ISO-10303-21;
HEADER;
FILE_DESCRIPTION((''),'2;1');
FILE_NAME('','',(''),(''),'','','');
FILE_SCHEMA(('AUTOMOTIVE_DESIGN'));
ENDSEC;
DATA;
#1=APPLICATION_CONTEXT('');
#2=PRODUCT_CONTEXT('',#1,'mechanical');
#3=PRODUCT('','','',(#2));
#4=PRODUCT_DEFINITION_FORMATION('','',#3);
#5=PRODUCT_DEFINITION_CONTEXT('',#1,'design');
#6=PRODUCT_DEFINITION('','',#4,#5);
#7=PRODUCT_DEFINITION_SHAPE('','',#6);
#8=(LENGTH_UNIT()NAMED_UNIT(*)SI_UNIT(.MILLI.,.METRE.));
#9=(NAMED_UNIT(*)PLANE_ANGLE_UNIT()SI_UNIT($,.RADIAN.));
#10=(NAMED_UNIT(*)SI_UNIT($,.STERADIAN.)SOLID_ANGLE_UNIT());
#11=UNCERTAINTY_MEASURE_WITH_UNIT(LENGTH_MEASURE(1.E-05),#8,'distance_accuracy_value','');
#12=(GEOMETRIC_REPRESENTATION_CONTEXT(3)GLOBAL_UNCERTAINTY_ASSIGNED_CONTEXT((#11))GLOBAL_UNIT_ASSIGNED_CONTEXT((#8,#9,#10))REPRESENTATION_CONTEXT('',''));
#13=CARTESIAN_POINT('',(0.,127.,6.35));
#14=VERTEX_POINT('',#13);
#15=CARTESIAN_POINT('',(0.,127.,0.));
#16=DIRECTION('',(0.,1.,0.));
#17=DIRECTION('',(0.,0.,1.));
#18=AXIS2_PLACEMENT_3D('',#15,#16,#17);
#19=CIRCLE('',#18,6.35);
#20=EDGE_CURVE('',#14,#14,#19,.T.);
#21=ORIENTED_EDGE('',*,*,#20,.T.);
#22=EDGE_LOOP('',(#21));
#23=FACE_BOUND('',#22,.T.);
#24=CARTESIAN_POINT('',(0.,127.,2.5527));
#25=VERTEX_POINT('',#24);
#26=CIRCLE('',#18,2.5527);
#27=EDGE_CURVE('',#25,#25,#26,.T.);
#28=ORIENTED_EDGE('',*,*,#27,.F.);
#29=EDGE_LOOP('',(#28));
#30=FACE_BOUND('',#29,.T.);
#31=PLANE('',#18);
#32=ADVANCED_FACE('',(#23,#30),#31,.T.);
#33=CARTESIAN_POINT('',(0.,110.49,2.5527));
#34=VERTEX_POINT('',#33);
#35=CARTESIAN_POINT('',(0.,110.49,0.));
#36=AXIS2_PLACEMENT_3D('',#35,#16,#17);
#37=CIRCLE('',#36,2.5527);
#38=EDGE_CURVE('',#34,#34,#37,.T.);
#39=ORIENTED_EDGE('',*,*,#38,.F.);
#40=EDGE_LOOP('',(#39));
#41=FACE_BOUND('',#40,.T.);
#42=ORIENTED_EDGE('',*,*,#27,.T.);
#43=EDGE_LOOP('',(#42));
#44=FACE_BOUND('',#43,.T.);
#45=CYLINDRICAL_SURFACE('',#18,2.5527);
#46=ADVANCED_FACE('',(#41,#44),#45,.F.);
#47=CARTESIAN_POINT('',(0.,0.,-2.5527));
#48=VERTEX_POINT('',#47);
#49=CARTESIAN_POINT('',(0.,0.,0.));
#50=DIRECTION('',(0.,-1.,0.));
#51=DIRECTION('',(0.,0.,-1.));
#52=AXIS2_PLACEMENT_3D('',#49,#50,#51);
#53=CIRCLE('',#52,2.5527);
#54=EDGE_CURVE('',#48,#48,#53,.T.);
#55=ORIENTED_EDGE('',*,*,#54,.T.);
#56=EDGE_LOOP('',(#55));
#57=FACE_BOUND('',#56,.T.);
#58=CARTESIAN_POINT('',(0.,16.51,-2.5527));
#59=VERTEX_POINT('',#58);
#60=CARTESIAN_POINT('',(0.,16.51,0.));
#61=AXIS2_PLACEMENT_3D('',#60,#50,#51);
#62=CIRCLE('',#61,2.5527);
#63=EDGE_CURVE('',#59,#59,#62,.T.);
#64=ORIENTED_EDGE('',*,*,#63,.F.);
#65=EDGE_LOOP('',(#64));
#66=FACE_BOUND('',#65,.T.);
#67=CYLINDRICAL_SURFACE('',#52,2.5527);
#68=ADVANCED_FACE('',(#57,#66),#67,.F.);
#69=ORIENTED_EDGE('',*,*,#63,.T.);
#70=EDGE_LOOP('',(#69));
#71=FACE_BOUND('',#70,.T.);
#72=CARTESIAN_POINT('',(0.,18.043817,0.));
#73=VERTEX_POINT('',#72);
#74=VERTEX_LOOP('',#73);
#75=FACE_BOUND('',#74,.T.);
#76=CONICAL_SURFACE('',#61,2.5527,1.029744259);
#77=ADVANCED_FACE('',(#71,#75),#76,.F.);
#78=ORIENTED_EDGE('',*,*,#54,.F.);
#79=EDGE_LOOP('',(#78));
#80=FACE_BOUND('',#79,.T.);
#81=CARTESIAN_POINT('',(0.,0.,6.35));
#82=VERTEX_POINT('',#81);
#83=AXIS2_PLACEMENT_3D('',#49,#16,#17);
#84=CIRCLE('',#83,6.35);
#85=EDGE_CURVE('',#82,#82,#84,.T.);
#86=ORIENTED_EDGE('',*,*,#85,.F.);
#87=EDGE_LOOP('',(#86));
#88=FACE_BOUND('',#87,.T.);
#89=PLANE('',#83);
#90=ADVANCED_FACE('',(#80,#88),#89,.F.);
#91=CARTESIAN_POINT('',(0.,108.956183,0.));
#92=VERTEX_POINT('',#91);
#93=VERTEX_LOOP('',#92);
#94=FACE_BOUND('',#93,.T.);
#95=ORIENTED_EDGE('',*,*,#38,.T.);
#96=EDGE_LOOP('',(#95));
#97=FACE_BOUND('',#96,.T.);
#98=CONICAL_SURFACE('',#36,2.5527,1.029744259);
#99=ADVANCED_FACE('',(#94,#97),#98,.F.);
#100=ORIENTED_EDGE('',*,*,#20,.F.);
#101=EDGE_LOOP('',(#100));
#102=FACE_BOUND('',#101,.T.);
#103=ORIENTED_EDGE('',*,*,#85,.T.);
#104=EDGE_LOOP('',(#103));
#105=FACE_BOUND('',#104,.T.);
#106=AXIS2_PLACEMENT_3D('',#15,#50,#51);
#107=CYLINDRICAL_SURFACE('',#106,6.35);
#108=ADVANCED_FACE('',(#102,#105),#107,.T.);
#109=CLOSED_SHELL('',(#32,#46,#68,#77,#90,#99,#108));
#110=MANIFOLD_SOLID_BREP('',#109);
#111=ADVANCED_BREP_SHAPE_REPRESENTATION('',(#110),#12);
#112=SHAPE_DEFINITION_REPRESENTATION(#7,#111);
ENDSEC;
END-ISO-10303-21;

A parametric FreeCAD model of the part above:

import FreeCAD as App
import Part
import Sketcher

V = App.Vector
Q = App.Units.Quantity

doc = App.newDocument("Part")
body = doc.addObject("PartDesign::Body", "Body")

sketch1 = body.newObject("Sketcher::SketchObject", "Sketch")
sketch1.AttachmentSupport = (doc.getObject("XZ_Plane"), [""])
sketch1.MapMode = "FlatFace"
sketch1.addGeometry(Part.Circle(V(0, 0, 0), V(0, 0, 1), 6), False)
sketch1.addConstraint([
    Sketcher.Constraint("Coincident", 0, 3, -1, 1),
    Sketcher.Constraint("Diameter", 0, Q("0.5 in")),
])
pad1 = body.newObject("PartDesign::Pad", "Pad")
pad1.Profile = sketch1
pad1.Length = Q("5 in")
pad1.Reversed = True

sketch2 = body.newObject("Sketcher::SketchObject", "Sketch001")
sketch2.AttachmentSupport = (doc.getObject("XZ_Plane"), [""])
sketch2.MapMode = "FlatFace"
sketch2.AttachmentOffset = App.Placement(V(0, 0, -5 * 25.4), App.Rotation())
sketch2.addGeometry(Part.Circle(V(0, 0, 0), V(0, 0, 1), 2.6), False)
sketch2.addConstraint([
    Sketcher.Constraint("Coincident", 0, 3, -1, 1),
    Sketcher.Constraint("Diameter", 0, Q("0.201 in")),
])
doc.recompute()
hole = body.newObject("PartDesign::Hole", "Hole")
hole.Profile = sketch2
hole.ThreadType = "None"
hole.Diameter = Q("0.201 in")
hole.DepthType = "Dimension"
hole.Depth = Q("0.65 in")
hole.DrillPoint = "Angled"
hole.DrillPointAngle = 118
hole.Reversed = True

sketch3 = body.newObject("Sketcher::SketchObject", "Sketch002")
sketch3.AttachmentSupport = (doc.getObject("XZ_Plane"), [""])
sketch3.MapMode = "FlatFace"
sketch3.addGeometry(Part.Circle(V(0, 0, 0), V(0, 0, 1), 2.6), False)
sketch3.addConstraint([
    Sketcher.Constraint("Coincident", 0, 3, -1, 1),
    Sketcher.Constraint("Diameter", 0, Q("0.201 in")),
])
doc.recompute()
hole2 = body.newObject("PartDesign::Hole", "Hole001")
hole2.Profile = sketch3
hole2.ThreadType = "None"
hole2.Diameter = Q("0.201 in")
hole2.DepthType = "Dimension"
hole2.Depth = Q("0.65 in")
hole2.DrillPoint = "Angled"
hole2.DrillPointAngle = 118

doc.recompute()
